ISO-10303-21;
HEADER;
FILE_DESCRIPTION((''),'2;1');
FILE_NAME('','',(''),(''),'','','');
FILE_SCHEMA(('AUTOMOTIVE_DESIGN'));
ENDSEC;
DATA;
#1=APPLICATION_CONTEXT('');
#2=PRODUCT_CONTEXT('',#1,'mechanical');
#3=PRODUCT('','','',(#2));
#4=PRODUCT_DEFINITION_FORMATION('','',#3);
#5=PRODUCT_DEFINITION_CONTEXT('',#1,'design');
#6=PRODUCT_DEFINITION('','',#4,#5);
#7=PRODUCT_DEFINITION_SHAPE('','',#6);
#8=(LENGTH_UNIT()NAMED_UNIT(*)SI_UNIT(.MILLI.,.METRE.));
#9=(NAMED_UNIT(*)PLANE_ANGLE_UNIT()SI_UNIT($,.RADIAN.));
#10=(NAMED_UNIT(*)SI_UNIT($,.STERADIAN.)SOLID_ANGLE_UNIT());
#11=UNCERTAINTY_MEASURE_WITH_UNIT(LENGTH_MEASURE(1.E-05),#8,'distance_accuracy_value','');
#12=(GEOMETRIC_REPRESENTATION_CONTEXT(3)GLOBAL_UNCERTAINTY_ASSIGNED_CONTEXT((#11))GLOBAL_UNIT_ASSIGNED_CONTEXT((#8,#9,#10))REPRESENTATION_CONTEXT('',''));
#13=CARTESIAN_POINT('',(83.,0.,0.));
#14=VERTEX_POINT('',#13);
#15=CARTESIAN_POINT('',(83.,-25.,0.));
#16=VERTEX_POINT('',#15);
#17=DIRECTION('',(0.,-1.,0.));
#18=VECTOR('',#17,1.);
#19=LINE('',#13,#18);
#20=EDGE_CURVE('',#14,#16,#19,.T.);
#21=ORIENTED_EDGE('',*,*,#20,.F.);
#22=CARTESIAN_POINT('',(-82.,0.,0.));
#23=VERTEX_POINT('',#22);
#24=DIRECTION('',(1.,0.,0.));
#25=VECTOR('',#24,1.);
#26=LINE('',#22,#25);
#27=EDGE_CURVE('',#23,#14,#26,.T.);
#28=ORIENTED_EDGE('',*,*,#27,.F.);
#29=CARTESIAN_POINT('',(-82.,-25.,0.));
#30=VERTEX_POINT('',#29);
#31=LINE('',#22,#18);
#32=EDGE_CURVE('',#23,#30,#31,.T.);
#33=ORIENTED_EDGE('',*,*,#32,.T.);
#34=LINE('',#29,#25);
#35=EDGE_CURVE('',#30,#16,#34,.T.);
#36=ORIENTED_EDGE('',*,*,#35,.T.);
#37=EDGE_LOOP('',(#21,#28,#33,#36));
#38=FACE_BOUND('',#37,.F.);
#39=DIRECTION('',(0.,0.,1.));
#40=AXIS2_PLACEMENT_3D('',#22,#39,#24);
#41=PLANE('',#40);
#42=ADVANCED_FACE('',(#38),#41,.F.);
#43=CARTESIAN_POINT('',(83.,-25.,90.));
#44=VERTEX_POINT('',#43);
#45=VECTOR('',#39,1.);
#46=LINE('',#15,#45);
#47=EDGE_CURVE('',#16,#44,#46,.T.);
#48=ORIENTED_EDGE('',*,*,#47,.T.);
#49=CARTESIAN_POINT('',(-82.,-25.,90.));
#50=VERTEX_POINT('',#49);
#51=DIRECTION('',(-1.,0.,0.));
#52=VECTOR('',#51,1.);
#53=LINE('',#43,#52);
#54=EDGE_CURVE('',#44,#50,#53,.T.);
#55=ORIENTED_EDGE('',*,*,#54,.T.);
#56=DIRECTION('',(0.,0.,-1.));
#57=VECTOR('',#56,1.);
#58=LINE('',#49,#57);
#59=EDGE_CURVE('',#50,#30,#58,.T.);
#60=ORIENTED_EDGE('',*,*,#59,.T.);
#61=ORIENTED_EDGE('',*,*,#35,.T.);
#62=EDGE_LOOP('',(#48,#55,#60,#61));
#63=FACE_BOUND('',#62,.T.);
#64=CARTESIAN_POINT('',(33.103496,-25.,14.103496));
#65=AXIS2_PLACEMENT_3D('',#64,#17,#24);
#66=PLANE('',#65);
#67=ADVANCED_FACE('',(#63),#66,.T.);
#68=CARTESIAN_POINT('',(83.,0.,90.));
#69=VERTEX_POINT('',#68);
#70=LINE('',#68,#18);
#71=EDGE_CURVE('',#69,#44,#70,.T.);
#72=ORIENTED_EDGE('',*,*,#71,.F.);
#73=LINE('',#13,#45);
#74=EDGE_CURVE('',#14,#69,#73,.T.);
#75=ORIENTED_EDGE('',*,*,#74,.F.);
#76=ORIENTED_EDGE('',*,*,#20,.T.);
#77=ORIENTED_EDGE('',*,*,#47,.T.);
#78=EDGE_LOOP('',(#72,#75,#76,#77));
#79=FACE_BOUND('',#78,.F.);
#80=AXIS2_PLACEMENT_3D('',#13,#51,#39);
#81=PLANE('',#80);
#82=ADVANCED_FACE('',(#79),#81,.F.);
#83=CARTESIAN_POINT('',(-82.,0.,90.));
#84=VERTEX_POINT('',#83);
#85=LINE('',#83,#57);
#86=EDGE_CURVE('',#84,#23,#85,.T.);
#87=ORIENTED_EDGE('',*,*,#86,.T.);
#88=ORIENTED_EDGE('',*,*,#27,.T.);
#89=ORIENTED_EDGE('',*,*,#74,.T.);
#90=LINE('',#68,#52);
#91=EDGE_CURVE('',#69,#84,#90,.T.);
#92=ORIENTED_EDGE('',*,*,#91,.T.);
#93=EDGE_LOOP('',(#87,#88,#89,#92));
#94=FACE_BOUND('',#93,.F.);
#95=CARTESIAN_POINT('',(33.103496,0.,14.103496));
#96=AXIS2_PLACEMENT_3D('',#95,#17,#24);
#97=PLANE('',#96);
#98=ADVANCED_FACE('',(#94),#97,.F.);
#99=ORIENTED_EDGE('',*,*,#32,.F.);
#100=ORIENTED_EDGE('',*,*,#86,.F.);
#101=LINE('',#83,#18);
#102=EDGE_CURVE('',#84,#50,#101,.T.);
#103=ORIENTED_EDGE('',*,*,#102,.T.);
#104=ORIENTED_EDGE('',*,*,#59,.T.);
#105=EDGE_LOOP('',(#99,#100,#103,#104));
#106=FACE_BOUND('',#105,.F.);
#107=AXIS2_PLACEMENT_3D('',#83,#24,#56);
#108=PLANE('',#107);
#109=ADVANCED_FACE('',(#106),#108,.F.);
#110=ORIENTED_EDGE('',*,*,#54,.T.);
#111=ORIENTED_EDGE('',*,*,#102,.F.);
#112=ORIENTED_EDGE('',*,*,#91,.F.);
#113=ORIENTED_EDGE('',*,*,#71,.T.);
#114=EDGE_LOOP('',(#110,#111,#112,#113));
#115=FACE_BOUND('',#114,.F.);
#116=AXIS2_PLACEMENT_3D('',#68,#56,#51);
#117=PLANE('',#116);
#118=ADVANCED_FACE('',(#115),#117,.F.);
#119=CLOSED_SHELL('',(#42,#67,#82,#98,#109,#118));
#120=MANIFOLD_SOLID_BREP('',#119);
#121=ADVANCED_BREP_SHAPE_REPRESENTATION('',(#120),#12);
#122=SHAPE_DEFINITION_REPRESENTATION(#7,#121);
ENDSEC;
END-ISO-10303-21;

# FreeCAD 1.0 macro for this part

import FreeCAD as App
import Part
import Sketcher
Q = App.Units.Quantity

doc = App.newDocument("Part")
params = doc.addObject("Spreadsheet::Sheet", "Params")
for row, (alias, value) in enumerate([
    ("sketch1_width", "165 mm"),
    ("sketch1_height", "90 mm"),
    ("pad1_length", "25 mm"),
], start=1):
    params.set(f"A{row}", alias)
    params.set(f"B{row}", "=" + value)
    params.setAlias(f"B{row}", alias)

body = doc.addObject("PartDesign::Body", "Body")

# Sketch on XZ plane
sketch1 = body.newObject("Sketcher::SketchObject", "Sketch")
sketch1.AttachmentSupport = (doc.getObject("XZ_Plane"), [""])
sketch1.MapMode = "FlatFace"
sketch1.addGeometry([
    Part.LineSegment(App.Vector(-82, 0, 0), App.Vector(83, 0, 0)),
    Part.LineSegment(App.Vector(83, 0, 0), App.Vector(83, 90, 0)),
    Part.LineSegment(App.Vector(83, 90, 0), App.Vector(-82, 90, 0)),
    Part.LineSegment(App.Vector(-82, 90, 0), App.Vector(-82, 0, 0)),
], False)
sketch1.addConstraint([
    Sketcher.Constraint("Coincident", 0, 2, 1, 1),
    Sketcher.Constraint("Coincident", 1, 2, 2, 1),
    Sketcher.Constraint("Coincident", 2, 2, 3, 1),
    Sketcher.Constraint("Coincident", 3, 2, 0, 1),
    Sketcher.Constraint("Horizontal", 0),
    Sketcher.Constraint("Vertical", 1),
    Sketcher.Constraint("Horizontal", 2),
    Sketcher.Constraint("Vertical", 3),
    Sketcher.Constraint("PointOnObject", 0, 2, -1),
    Sketcher.Constraint("DistanceX", 0, 1, 0, 2, Q("165 mm")),
    Sketcher.Constraint("DistanceY", 1, 1, 1, 2, Q("90 mm")),
    Sketcher.Constraint("DistanceX", -1, 1, 0, 2, Q("83 mm")),
])
sketch1.setExpression("Constraints[9]", "Params.sketch1_width")
sketch1.setExpression("Constraints[10]", "Params.sketch1_height")
pad1 = body.newObject("PartDesign::Pad", "Pad")
pad1.Profile = sketch1
pad1.setExpression("Length", "Params.pad1_length")

doc.recompute()
